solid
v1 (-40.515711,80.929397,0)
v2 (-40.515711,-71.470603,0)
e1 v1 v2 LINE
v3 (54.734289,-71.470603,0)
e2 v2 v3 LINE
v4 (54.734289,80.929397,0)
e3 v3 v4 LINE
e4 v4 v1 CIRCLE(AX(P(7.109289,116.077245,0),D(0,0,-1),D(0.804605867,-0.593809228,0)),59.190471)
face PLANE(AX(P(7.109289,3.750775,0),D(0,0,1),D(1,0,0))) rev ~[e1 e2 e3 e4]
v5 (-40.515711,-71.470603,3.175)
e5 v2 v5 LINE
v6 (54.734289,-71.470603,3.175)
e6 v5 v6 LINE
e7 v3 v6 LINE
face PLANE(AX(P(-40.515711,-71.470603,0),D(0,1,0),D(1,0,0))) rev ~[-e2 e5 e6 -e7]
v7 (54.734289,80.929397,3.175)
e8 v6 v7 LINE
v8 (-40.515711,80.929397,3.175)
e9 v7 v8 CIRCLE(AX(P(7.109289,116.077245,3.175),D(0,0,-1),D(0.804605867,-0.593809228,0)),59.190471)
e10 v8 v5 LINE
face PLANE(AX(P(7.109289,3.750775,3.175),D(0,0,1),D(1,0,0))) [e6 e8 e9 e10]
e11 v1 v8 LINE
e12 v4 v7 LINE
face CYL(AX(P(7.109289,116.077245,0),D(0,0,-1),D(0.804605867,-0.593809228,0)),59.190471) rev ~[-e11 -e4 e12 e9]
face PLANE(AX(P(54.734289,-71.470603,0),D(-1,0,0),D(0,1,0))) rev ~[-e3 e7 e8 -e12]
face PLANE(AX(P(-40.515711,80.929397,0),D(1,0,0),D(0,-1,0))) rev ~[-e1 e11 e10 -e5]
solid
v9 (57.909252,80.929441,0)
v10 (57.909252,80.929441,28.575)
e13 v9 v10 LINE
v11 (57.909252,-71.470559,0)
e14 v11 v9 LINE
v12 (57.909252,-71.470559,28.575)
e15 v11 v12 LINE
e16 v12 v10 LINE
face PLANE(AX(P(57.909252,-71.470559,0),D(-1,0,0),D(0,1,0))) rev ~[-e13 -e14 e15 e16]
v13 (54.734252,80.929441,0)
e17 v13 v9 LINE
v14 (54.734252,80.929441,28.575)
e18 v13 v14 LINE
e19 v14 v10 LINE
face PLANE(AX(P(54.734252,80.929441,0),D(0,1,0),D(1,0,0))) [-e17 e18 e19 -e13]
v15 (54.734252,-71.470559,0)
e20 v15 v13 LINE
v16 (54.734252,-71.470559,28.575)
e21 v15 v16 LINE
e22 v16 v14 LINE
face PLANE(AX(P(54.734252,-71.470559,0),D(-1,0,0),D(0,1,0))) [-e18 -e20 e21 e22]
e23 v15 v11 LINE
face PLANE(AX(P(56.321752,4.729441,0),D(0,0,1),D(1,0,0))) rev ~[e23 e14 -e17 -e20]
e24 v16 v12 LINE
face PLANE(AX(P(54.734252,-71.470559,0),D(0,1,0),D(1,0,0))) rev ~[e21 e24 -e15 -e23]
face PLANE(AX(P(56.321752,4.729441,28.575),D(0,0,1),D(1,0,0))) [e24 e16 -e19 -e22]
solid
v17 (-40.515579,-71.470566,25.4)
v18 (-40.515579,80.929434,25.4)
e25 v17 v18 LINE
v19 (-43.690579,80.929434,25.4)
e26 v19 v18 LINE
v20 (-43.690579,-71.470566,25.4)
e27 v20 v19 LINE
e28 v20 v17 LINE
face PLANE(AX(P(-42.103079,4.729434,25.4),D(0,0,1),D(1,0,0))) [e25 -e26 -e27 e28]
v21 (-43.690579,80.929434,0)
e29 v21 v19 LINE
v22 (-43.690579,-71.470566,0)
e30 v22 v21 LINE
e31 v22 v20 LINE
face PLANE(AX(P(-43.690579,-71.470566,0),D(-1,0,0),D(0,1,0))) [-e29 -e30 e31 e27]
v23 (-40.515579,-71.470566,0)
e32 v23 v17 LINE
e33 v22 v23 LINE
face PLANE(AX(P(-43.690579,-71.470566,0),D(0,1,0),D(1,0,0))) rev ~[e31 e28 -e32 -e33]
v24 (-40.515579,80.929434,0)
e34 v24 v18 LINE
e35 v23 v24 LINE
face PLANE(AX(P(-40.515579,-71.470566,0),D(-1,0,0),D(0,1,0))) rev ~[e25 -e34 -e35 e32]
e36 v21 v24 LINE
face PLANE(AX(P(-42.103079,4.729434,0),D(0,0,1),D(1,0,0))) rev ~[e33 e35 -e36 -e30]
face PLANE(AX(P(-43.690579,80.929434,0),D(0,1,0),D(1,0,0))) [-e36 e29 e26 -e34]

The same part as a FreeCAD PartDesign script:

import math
import FreeCAD as App
import Part
import Sketcher

V = App.Vector
Q = App.Units.Quantity


def add_polygon(sketch, points):
    """Adds a closed chain of lines whose ends are joined by coincident constraints."""
    first, n = sketch.GeometryCount, len(points)
    for a, b in zip(points, points[1:] + points[:1]):
        sketch.addGeometry(Part.LineSegment(App.Vector(*a, 0), App.Vector(*b, 0)), False)
    for i in range(n):
        sketch.addConstraint(Sketcher.Constraint("Coincident", first + i, 2, first + (i + 1) % n, 1))

doc = App.newDocument("Part")
params = doc.addObject("Spreadsheet::Sheet", "Params")
for row, (alias, value) in enumerate([
    ("sketch1_height", "6 in"),
    ("sketch1_width", "3.75 in"),
    ("pad1_length", "0.125 in"),
    ("sketch2_height", "6 in"),
    ("sketch2_width", "0.125 in"),
    ("pad2_length", "1.125 in"),
    ("sketch3_height", "6 in"),
    ("sketch3_width", "0.125 in"),
    ("pad3_length", "1 in"),
], start=1):
    params.set(f"A{row}", alias)
    params.set(f"B{row}", "=" + value)
    params.setAlias(f"B{row}", alias)

body = doc.addObject("PartDesign::Body", "Body")

# Sketch on XY plane
sketch1 = body.newObject("Sketcher::SketchObject", "Sketch")
sketch1.AttachmentSupport = (doc.getObject("XY_Plane"), [""])
sketch1.MapMode = "FlatFace"
sketch1.addGeometry([
    Part.LineSegment(V(-41, -71, 0), V(55, -71, 0)),
    Part.LineSegment(V(55, -71, 0), V(55, 81, 0)),
    Part.ArcOfCircle(Part.Circle(V(7, 116, 0), V(0, 0, 1), 59), math.radians(-144), math.radians(-36)),
    Part.LineSegment(V(-41, 81, 0), V(-41, -71, 0)),
], False)
sketch1.addConstraint([
    Sketcher.Constraint("Coincident", 0, 2, 1, 1),
    Sketcher.Constraint("Coincident", 1, 2, 2, 2),
    Sketcher.Constraint("Coincident", 2, 1, 3, 1),
    Sketcher.Constraint("Coincident", 3, 2, 0, 1),
    Sketcher.Constraint("Horizontal", 0),
    Sketcher.Constraint("Vertical", 1),
    Sketcher.Constraint("Vertical", 3),
    Sketcher.Constraint("Horizontal", 1, 2, 2, 1),
    Sketcher.Constraint("DistanceY", 1, 1, 1, 2, Q("6 in")),
    Sketcher.Constraint("DistanceX", 0, 1, 0, 2, Q("3.75 in")),
    Sketcher.Constraint("Radius", 2, 59.190471),
    Sketcher.Constraint("DistanceX", -1, 1, 2, 3, 7.109289),
    Sketcher.Constraint("DistanceY", -1, 1, 2, 3, 116.077245),
])
sketch1.setExpression("Constraints[8]", "Params.sketch1_height")
sketch1.setExpression("Constraints[9]", "Params.sketch1_width")
pad1 = body.newObject("PartDesign::Pad", "Pad")
pad1.Profile = sketch1
pad1.setExpression("Length", "Params.pad1_length")
body2 = doc.addObject("PartDesign::Body", "Body001")

# Sketch on XY plane
sketch2 = body2.newObject("Sketcher::SketchObject", "Sketch001")
sketch2.AttachmentSupport = (doc.getObject("XY_Plane001"), [""])
sketch2.MapMode = "FlatFace"
add_polygon(sketch2, [(54.7, 80.9), (54.7, -71.5), (57.9, -71.5), (57.9, 80.9)])  # lines 0-3
sketch2.addConstraint([
    Sketcher.Constraint("Vertical", 0),
    Sketcher.Constraint("Horizontal", 1),
    Sketcher.Constraint("Vertical", 2),
    Sketcher.Constraint("Horizontal", 3),
    Sketcher.Constraint("DistanceY", 0, 2, 0, 1, Q("6 in")),
    Sketcher.Constraint("DistanceX", 1, 1, 1, 2, Q("0.125 in")),
    Sketcher.Constraint("DistanceX", -1, 1, 0, 2, 54.734252),
    Sketcher.Constraint("DistanceY", 0, 2, -1, 1, 71.470559),
])
sketch2.setExpression("Constraints[8]", "Params.sketch2_height")
sketch2.setExpression("Constraints[9]", "Params.sketch2_width")
pad2 = body2.newObject("PartDesign::Pad", "Pad001")
pad2.Profile = sketch2
pad2.setExpression("Length", "Params.pad2_length")
body3 = doc.addObject("PartDesign::Body", "Body002")

# Sketch on XY plane
sketch3 = body3.newObject("Sketcher::SketchObject", "Sketch002")
sketch3.AttachmentSupport = (doc.getObject("XY_Plane002"), [""])
sketch3.MapMode = "FlatFace"
add_polygon(sketch3, [(-43.7, 80.9), (-43.7, -71.5), (-40.5, -71.5), (-40.5, 80.9)])  # lines 0-3
sketch3.addConstraint([
    Sketcher.Constraint("Vertical", 0),
    Sketcher.Constraint("Horizontal", 1),
    Sketcher.Constraint("Vertical", 2),
    Sketcher.Constraint("Horizontal", 3),
    Sketcher.Constraint("DistanceY", 0, 2, 0, 1, Q("6 in")),
    Sketcher.Constraint("DistanceX", 1, 1, 1, 2, Q("0.125 in")),
    Sketcher.Constraint("DistanceX", 0, 2, -1, 1, 43.690579),
    Sketcher.Constraint("DistanceY", 0, 2, -1, 1, 71.470566),
])
sketch3.setExpression("Constraints[8]", "Params.sketch3_height")
sketch3.setExpression("Constraints[9]", "Params.sketch3_width")
pad3 = body3.newObject("PartDesign::Pad", "Pad002")
pad3.Profile = sketch3
pad3.setExpression("Length", "Params.pad3_length")

doc.recompute()
